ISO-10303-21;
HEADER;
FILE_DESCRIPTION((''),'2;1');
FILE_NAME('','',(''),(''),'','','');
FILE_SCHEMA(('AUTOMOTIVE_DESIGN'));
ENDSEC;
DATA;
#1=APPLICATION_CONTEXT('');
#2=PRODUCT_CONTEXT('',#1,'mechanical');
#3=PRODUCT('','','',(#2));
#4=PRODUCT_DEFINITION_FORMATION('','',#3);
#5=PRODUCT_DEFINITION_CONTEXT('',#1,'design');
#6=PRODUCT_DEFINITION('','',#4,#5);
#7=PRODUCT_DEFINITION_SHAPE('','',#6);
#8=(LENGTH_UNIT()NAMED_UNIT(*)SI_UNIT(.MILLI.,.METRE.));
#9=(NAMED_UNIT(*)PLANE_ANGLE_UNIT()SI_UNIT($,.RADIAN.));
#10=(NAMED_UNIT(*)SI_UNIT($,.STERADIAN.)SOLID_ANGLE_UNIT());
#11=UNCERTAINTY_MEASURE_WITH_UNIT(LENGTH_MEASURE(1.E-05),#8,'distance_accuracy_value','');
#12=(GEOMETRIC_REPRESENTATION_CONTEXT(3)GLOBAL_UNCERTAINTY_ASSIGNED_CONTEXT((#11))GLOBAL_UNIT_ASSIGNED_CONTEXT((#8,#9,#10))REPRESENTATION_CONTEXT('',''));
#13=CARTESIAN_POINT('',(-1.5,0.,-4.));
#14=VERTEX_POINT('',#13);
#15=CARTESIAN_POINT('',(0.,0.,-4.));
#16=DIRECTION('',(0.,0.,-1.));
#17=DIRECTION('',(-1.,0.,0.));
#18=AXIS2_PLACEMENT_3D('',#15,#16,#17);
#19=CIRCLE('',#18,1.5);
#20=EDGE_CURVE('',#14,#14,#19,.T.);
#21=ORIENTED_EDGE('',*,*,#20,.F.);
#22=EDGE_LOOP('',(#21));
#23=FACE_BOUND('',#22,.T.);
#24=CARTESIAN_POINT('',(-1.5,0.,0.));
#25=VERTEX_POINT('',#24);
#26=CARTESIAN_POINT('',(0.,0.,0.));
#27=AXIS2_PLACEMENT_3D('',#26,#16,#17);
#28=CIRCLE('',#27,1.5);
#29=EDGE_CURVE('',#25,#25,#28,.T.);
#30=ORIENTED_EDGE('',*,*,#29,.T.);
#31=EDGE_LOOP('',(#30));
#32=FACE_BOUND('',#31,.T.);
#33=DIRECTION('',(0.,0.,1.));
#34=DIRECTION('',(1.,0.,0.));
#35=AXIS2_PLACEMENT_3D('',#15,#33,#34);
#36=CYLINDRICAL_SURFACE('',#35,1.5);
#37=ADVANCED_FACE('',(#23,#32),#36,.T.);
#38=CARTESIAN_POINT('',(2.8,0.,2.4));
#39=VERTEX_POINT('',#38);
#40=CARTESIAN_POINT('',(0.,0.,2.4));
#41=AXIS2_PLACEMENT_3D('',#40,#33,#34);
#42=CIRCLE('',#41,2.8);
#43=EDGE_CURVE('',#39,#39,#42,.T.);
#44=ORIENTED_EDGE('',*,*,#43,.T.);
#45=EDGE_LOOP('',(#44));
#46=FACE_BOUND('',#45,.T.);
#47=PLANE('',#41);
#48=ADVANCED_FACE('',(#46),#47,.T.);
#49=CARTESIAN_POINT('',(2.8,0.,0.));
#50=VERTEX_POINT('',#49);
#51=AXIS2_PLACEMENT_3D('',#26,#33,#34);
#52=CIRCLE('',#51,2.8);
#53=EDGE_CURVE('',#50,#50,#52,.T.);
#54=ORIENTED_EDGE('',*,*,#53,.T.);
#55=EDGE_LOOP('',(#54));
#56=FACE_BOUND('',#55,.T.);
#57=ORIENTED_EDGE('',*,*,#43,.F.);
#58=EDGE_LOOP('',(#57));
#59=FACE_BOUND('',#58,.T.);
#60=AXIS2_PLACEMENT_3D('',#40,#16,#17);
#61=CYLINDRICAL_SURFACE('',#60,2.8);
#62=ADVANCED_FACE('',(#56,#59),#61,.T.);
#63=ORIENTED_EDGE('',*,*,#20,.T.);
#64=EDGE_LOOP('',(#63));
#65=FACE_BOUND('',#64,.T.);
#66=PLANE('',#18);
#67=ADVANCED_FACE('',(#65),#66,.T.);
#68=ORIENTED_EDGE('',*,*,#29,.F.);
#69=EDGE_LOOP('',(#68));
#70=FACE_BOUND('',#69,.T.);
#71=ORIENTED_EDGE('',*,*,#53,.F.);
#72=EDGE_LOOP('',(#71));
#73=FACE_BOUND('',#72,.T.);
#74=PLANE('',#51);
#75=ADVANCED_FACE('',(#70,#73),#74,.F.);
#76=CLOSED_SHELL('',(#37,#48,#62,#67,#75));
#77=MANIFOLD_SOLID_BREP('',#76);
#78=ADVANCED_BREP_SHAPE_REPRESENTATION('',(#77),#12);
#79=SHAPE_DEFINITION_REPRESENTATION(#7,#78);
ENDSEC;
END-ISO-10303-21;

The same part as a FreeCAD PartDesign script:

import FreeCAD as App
import Part
import Sketcher
from FreeCAD import Vector

doc = App.newDocument("Part")
body = doc.addObject("PartDesign::Body", "Body")

sketch1 = body.newObject("Sketcher::SketchObject", "Sketch")
sketch1.AttachmentSupport = (doc.getObject("XY_Plane"), [""])
sketch1.MapMode = "FlatFace"
sketch1.addGeometry(Part.Circle(Vector(0, 0, 0), Vector(0, 0, 1), 2.8), False)
sketch1.addConstraint(Sketcher.Constraint("Coincident", 0, 3, -1, 1))
sketch1.addConstraint(Sketcher.Constraint("Diameter", 0, 5.6))
pad1 = body.newObject("PartDesign::Pad", "Pad")
pad1.Profile = sketch1
pad1.Length = 2.4

sketch2 = body.newObject("Sketcher::SketchObject", "Sketch001")
sketch2.AttachmentSupport = (doc.getObject("XY_Plane"), [""])
sketch2.MapMode = "FlatFace"
sketch2.addGeometry(Part.Circle(Vector(0, 0, 0), Vector(0, 0, 1), 1.5), False)
sketch2.addConstraint(Sketcher.Constraint("Coincident", 0, 3, -1, 1))
sketch2.addConstraint(Sketcher.Constraint("Diameter", 0, 3.0))
pad2 = body.newObject("PartDesign::Pad", "Pad001")
pad2.Profile = sketch2
pad2.Length = 4
pad2.Reversed = True

doc.recompute()
